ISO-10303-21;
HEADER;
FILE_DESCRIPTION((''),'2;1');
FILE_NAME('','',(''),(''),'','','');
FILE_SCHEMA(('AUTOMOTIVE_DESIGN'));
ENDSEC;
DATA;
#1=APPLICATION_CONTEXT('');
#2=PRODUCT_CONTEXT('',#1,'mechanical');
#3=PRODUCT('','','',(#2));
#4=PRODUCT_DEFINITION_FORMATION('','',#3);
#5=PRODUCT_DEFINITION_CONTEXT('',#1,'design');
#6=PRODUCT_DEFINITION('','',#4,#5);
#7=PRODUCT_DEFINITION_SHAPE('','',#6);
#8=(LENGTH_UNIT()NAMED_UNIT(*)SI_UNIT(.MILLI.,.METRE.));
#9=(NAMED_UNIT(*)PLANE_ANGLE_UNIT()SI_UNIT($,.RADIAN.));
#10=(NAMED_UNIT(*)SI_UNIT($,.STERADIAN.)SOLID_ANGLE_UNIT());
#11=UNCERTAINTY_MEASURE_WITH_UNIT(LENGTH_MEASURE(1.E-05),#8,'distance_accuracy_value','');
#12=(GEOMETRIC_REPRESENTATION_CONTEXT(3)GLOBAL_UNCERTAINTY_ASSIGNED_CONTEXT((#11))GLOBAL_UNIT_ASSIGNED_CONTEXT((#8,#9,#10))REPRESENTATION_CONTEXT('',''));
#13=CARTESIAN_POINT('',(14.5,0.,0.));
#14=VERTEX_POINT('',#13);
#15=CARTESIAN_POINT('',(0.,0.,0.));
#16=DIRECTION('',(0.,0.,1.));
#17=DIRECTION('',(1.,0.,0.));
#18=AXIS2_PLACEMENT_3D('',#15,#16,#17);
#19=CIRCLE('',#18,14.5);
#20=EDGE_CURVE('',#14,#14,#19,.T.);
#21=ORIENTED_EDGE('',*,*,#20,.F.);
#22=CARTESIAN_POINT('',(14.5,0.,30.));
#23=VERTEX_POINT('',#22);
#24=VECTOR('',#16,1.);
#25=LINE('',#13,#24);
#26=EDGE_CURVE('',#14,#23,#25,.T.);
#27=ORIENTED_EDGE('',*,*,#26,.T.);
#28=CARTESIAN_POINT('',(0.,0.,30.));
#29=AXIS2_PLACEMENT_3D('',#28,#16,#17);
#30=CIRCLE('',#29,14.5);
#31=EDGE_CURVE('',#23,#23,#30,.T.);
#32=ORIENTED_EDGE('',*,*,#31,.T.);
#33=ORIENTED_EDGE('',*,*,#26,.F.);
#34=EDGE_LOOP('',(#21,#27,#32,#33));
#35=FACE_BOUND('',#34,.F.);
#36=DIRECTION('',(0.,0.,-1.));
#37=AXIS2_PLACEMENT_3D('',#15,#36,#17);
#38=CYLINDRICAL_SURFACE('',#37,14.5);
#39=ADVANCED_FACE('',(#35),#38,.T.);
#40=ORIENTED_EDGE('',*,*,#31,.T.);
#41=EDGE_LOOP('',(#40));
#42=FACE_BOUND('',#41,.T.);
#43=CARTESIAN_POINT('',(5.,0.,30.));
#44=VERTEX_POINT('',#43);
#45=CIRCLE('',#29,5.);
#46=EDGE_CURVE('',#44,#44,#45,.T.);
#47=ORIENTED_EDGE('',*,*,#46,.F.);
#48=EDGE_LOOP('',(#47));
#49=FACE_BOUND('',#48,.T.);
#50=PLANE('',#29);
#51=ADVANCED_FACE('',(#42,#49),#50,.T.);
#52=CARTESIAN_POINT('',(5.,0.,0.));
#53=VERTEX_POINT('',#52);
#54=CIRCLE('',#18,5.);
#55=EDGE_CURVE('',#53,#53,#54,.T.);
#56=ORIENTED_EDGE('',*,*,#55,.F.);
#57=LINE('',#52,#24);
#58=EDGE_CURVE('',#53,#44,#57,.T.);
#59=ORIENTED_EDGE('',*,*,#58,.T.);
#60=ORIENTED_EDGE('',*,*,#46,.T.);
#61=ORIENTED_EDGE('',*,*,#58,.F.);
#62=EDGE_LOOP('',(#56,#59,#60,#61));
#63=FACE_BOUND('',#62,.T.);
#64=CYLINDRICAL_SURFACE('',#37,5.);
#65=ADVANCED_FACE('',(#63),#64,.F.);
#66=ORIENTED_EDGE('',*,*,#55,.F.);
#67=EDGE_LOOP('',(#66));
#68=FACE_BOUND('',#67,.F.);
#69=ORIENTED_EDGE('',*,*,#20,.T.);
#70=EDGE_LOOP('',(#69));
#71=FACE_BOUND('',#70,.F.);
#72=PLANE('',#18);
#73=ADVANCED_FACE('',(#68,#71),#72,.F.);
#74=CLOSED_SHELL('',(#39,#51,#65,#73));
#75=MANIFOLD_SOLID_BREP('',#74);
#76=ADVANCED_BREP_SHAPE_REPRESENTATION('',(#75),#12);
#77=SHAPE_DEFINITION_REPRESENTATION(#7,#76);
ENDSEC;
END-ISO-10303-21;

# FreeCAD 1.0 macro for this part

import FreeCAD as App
import Part
import Sketcher
from FreeCAD import Vector
Q = App.Units.Quantity

doc = App.newDocument("Part")
params = doc.addObject("Spreadsheet::Sheet", "Params")
for row, (alias, value) in enumerate([
    ("sketch1_diameter", "29 mm"),
    ("sketch1_diameter2", "10 mm"),
    ("pad1_length", "30 mm"),
], start=1):
    params.set(f"A{row}", alias)
    params.set(f"B{row}", "=" + value)
    params.setAlias(f"B{row}", alias)

body = doc.addObject("PartDesign::Body", "Body")

sketch1 = doc.addObject("Sketcher::SketchObject", "Sketch")
body.addObject(sketch1)
sketch1.AttachmentSupport = (doc.XY_Plane, [""])
sketch1.MapMode = "FlatFace"
sketch1.addGeometry(Part.Circle(Vector(0, 0, 0), Vector(0, 0, 1), 14), False)
sketch1.addGeometry(Part.Circle(Vector(0, 0, 0), Vector(0, 0, 1), 5), False)
sketch1.addConstraint(Sketcher.Constraint("Coincident", 0, 3, -1, 1))
sketch1.addConstraint(Sketcher.Constraint("Coincident", 1, 3, -1, 1))
sketch1.addConstraint(Sketcher.Constraint("Diameter", 0, Q("29 mm")))
sketch1.addConstraint(Sketcher.Constraint("Diameter", 1, Q("10 mm")))
sketch1.setExpression("Constraints[2]", "Params.sketch1_diameter")
sketch1.setExpression("Constraints[3]", "Params.sketch1_diameter2")
pad1 = doc.addObject("PartDesign::Pad", "Pad")
body.addObject(pad1)
pad1.Profile = sketch1
pad1.setExpression("Length", "Params.pad1_length")

doc.recompute()
